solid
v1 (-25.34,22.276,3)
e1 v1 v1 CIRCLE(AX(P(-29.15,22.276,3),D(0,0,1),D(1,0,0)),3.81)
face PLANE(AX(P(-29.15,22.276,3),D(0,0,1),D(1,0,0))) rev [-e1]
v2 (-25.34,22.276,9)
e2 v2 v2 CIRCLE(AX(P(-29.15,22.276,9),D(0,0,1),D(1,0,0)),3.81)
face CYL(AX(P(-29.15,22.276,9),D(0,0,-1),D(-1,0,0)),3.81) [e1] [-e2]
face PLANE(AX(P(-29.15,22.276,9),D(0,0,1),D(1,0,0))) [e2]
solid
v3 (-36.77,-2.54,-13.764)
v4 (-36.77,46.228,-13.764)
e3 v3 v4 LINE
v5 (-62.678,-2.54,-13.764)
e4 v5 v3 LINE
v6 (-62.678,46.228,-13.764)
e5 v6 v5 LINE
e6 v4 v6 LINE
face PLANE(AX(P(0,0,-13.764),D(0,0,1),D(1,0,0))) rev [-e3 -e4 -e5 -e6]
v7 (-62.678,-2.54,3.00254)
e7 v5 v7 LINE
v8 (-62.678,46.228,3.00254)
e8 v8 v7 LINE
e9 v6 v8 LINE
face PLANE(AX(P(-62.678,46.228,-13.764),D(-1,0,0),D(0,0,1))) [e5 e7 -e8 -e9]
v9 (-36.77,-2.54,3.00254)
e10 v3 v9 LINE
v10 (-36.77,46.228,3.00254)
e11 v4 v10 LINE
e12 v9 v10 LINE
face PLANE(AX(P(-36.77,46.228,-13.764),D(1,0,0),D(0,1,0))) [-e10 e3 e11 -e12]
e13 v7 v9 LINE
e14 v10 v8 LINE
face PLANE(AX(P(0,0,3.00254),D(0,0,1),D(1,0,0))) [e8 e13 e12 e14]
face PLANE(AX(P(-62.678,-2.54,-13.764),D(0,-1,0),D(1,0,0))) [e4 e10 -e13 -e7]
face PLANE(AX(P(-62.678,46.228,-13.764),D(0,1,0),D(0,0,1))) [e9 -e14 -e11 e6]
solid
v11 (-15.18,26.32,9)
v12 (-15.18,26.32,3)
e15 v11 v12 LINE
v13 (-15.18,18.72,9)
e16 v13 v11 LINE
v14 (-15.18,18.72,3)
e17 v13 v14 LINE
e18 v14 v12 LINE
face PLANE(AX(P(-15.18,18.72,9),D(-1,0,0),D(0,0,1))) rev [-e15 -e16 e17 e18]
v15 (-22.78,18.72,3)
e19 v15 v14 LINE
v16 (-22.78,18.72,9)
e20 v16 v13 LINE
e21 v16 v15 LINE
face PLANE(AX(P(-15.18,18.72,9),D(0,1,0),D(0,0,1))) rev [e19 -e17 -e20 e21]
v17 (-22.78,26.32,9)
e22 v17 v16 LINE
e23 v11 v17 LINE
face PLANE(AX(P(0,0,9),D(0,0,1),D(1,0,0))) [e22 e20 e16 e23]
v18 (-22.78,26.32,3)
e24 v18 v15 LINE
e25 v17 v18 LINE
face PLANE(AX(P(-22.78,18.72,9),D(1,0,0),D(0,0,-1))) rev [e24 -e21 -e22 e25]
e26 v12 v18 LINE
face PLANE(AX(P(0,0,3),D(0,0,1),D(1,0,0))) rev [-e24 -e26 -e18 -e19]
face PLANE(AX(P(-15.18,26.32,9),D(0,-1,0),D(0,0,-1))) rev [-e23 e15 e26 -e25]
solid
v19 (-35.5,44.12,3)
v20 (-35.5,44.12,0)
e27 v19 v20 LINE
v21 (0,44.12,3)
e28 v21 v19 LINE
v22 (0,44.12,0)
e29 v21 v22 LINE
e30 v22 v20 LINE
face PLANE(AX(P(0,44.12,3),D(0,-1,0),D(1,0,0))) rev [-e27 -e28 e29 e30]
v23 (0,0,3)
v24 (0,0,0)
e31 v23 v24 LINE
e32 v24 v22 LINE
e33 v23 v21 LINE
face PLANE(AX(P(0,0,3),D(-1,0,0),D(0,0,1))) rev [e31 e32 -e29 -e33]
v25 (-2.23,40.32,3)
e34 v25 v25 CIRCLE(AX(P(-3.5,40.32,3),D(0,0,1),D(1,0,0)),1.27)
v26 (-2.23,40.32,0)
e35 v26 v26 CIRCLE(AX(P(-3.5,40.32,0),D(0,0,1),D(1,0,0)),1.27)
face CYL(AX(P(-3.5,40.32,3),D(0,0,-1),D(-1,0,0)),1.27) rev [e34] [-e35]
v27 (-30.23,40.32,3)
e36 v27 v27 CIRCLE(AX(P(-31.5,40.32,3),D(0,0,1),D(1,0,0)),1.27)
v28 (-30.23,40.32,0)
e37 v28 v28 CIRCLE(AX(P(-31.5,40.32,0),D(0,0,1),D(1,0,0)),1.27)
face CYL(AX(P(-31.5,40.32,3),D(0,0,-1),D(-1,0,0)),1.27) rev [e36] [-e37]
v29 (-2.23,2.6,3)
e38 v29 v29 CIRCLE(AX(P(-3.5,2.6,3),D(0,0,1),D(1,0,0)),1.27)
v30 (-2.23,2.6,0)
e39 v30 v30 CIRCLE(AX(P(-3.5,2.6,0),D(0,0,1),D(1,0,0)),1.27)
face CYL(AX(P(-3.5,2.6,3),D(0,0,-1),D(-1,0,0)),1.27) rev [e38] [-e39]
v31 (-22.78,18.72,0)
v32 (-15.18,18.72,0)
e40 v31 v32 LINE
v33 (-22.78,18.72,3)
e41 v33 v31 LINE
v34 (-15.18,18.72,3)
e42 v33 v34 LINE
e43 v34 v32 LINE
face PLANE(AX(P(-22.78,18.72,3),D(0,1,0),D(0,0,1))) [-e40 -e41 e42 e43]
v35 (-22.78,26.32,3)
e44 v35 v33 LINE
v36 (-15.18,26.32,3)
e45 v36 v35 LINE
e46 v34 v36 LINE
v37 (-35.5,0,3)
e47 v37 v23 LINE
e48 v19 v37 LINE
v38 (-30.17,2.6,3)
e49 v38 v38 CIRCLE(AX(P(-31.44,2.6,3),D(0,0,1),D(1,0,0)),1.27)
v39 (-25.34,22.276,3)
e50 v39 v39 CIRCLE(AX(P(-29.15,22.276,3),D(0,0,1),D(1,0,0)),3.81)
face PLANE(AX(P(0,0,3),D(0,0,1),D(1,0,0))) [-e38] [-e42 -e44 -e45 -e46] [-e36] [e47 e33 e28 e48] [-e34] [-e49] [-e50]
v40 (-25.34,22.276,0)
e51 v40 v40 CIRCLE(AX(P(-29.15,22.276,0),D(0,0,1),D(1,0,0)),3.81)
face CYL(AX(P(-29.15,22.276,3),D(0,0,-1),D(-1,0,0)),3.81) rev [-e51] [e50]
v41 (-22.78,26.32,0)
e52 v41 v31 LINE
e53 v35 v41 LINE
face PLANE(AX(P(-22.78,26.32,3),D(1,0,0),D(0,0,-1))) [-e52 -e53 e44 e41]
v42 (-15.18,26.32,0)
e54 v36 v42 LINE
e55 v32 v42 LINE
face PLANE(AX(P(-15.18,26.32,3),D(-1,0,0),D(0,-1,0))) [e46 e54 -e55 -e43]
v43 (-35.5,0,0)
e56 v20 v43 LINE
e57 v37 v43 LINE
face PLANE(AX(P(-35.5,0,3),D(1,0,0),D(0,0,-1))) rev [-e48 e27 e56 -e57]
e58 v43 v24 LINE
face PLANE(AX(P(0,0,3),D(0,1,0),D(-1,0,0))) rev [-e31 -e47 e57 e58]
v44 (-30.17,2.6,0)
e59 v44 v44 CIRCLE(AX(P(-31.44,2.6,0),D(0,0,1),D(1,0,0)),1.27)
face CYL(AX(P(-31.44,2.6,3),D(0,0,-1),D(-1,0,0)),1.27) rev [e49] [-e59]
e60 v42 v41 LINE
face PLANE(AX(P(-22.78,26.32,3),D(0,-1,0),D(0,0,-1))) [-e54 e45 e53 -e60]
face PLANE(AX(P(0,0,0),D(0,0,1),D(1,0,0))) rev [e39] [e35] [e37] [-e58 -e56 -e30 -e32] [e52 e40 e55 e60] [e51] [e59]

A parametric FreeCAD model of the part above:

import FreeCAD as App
import Part
import Sketcher
from FreeCAD import Vector


def add_polygon(sketch, points):
    """Adds a closed chain of lines whose ends are joined by coincident constraints."""
    first, n = sketch.GeometryCount, len(points)
    for a, b in zip(points, points[1:] + points[:1]):
        sketch.addGeometry(Part.LineSegment(App.Vector(*a, 0), App.Vector(*b, 0)), False)
    for i in range(n):
        sketch.addConstraint(Sketcher.Constraint("Coincident", first + i, 2, first + (i + 1) % n, 1))

doc = App.newDocument("Part")
params = doc.addObject("Spreadsheet::Sheet", "Params")
for row, (alias, value) in enumerate([
    ("sketch1_diameter", "2.54 mm"),
    ("sketch1_diameter2", "7.62 mm"),
    ("sketch1_width", "35.5 mm"),
    ("sketch1_width2", "7.6 mm"),
    ("sketch1_height", "44.12 mm"),
    ("pad1_length", "3 mm"),
    ("pad2_length", "0.00254 mm"),
    ("pad2_length2", "16.764 mm"),
    ("sketch3_diameter", "7.62 mm"),
    ("pad3_length", "6 mm"),
    ("sketch4_width", "7.6 mm"),
    ("pad4_length", "6 mm"),
], start=1):
    params.set(f"A{row}", alias)
    params.set(f"B{row}", "=" + value)
    params.setAlias(f"B{row}", alias)

body = doc.addObject("PartDesign::Body", "Body")

sketch1 = doc.addObject("Sketcher::SketchObject", "Sketch")
body.addObject(sketch1)
sketch1.AttachmentSupport = (doc.XY_Plane, [""])
sketch1.MapMode = "FlatFace"
add_polygon(sketch1, [(-35.5, 44.1), (-35.5, 0), (0, 0), (0, 44.1)])
sketch1.addGeometry(Part.Circle(Vector(-31.4, 2.6, 0), Vector(0, 0, 1), 1.3), False)
sketch1.addGeometry(Part.Circle(Vector(-3.5, 2.6, 0), Vector(0, 0, 1), 1.3), False)
sketch1.addGeometry(Part.Circle(Vector(-29.1, 22.3, 0), Vector(0, 0, 1), 3.8), False)
add_polygon(sketch1, [(-15.2, 18.7), (-22.8, 18.7), (-22.8, 26.3), (-15.2, 26.3)])
sketch1.addGeometry(Part.Circle(Vector(-31.5, 40.3, 0), Vector(0, 0, 1), 1.3), False)
sketch1.addGeometry(Part.Circle(Vector(-3.5, 40.3, 0), Vector(0, 0, 1), 1.3), False)
sketch1.addConstraint([
    Sketcher.Constraint("Vertical", 0),
    Sketcher.Constraint("Horizontal", 1),
    Sketcher.Constraint("Vertical", 2),
    Sketcher.Constraint("Horizontal", 3),
    Sketcher.Constraint("Horizontal", 7),
    Sketcher.Constraint("Vertical", 8),
    Sketcher.Constraint("Horizontal", 9),
    Sketcher.Constraint("Vertical", 10),
    Sketcher.Constraint("Coincident", 1, 2, -1, 1),
    Sketcher.Constraint("Equal", 4, 5),
    Sketcher.Constraint("Equal", 5, 11),
    Sketcher.Constraint("Equal", 11, 12),
    Sketcher.Constraint("Horizontal", 4, 3, 5, 3),
    Sketcher.Constraint("Horizontal", 11, 3, 12, 3),
    Sketcher.Constraint("Vertical", 5, 3, 12, 3),
    Sketcher.Constraint("Equal", 9, 8),
    Sketcher.Constraint("Diameter", 4, 2.54),
    Sketcher.Constraint("Diameter", 6, 7.62),
    Sketcher.Constraint("DistanceX", 1, 1, 1, 2, 35.5),
    Sketcher.Constraint("DistanceX", 7, 2, 7, 1, 7.6),
    Sketcher.Constraint("DistanceX", 11, 3, 5, 3, 28.0),
    Sketcher.Constraint("DistanceX", 0, 2, 5, 3, 32.0),
    Sketcher.Constraint("DistanceY", 8, 2, 11, 3, 14.0),
    Sketcher.Constraint("DistanceY", 0, 2, 0, 1, 44.12),
    Sketcher.Constraint("DistanceY", -1, 1, 4, 3, 2.6),
    Sketcher.Constraint("DistanceY", 12, 3, 2, 2, 3.8),
    Sketcher.Constraint("DistanceX", 4, 3, -1, 1, 31.44),
    Sketcher.Constraint("DistanceX", 6, 3, -1, 1, 29.15),
    Sketcher.Constraint("DistanceX", 7, 2, -1, 1, 22.78),
    Sketcher.Constraint("DistanceY", -1, 1, 6, 3, 22.276),
])
sketch1.setExpression("Constraints[24]", "Params.sketch1_diameter")
sketch1.setExpression("Constraints[25]", "Params.sketch1_diameter2")
sketch1.setExpression("Constraints[26]", "Params.sketch1_width")
sketch1.setExpression("Constraints[27]", "Params.sketch1_width2")
sketch1.setExpression("Constraints[31]", "Params.sketch1_height")
pad1 = doc.addObject("PartDesign::Pad", "Pad")
body.addObject(pad1)
pad1.Profile = sketch1
pad1.setExpression("Length", "Params.pad1_length")
body2 = doc.addObject("PartDesign::Body", "Body001")

sketch2 = doc.addObject("Sketcher::SketchObject", "Sketch001")
body2.addObject(sketch2)
sketch2.AttachmentSupport = (doc.getObject("XY_Plane001"), [""])
sketch2.MapMode = "FlatFace"
sketch2.AttachmentOffset = App.Placement(Vector(0, 0, 3), App.Rotation())
add_polygon(sketch2, [(-63, 46), (-63, -3), (-37, -3), (-37, 46)])
sketch2.addConstraint([
    Sketcher.Constraint("Vertical", 0),
    Sketcher.Constraint("Horizontal", 1),
    Sketcher.Constraint("Vertical", 2),
    Sketcher.Constraint("Horizontal", 3),
    Sketcher.Constraint("DistanceX", 1, 1, 1, 2, 25.908),
    Sketcher.Constraint("DistanceY", 0, 2, 0, 1, 48.768),
    Sketcher.Constraint("DistanceY", 0, 2, -1, 1, 2.54),
    Sketcher.Constraint("DistanceX", 1, 2, -1, 1, 36.77),
])
pad2 = doc.addObject("PartDesign::Pad", "Pad001")
body2.addObject(pad2)
pad2.Profile = sketch2
pad2.Type = "TwoLengths"
pad2.setExpression("Length", "Params.pad2_length")
pad2.setExpression("Length2", "Params.pad2_length2")
body3 = doc.addObject("PartDesign::Body", "Body002")

sketch3 = doc.addObject("Sketcher::SketchObject", "Sketch002")
body3.addObject(sketch3)
sketch3.AttachmentSupport = (doc.getObject("XY_Plane002"), [""])
sketch3.MapMode = "FlatFace"
sketch3.AttachmentOffset = App.Placement(Vector(0, 0, 3), App.Rotation())
sketch3.addGeometry(Part.Circle(Vector(-29.1, 22.3, 0), Vector(0, 0, 1), 3.8), False)
sketch3.addConstraint([
    Sketcher.Constraint("Diameter", 0, 7.62),
    Sketcher.Constraint("DistanceX", 0, 3, -1, 1, 29.15),
    Sketcher.Constraint("DistanceY", -1, 1, 0, 3, 22.276),
])
sketch3.setExpression("Constraints[0]", "Params.sketch3_diameter")
pad3 = doc.addObject("PartDesign::Pad", "Pad002")
body3.addObject(pad3)
pad3.Profile = sketch3
pad3.setExpression("Length", "Params.pad3_length")
body4 = doc.addObject("PartDesign::Body", "Body003")

sketch4 = doc.addObject("Sketcher::SketchObject", "Sketch003")
body4.addObject(sketch4)
sketch4.AttachmentSupport = (doc.getObject("XY_Plane003"), [""])
sketch4.MapMode = "FlatFace"
sketch4.AttachmentOffset = App.Placement(Vector(0, 0, 3), App.Rotation())
add_polygon(sketch4, [(-23, 26), (-23, 19), (-15, 19), (-15, 26)])
sketch4.addConstraint([
    Sketcher.Constraint("Vertical", 0),
    Sketcher.Constraint("Horizontal", 1),
    Sketcher.Constraint("Vertical", 2),
    Sketcher.Constraint("Horizontal", 3),
    Sketcher.Constraint("Equal", 3, 0),
    Sketcher.Constraint("DistanceX", 1, 1, 1, 2, 7.6),
    Sketcher.Constraint("DistanceX", 0, 2, -1, 1, 22.78),
    Sketcher.Constraint("DistanceY", -1, 1, 0, 2, 18.72),
])
sketch4.setExpression("Constraints[9]", "Params.sketch4_width")
pad4 = doc.addObject("PartDesign::Pad", "Pad003")
body4.addObject(pad4)
pad4.Profile = sketch4
pad4.setExpression("Length", "Params.pad4_length")

doc.recompute()
